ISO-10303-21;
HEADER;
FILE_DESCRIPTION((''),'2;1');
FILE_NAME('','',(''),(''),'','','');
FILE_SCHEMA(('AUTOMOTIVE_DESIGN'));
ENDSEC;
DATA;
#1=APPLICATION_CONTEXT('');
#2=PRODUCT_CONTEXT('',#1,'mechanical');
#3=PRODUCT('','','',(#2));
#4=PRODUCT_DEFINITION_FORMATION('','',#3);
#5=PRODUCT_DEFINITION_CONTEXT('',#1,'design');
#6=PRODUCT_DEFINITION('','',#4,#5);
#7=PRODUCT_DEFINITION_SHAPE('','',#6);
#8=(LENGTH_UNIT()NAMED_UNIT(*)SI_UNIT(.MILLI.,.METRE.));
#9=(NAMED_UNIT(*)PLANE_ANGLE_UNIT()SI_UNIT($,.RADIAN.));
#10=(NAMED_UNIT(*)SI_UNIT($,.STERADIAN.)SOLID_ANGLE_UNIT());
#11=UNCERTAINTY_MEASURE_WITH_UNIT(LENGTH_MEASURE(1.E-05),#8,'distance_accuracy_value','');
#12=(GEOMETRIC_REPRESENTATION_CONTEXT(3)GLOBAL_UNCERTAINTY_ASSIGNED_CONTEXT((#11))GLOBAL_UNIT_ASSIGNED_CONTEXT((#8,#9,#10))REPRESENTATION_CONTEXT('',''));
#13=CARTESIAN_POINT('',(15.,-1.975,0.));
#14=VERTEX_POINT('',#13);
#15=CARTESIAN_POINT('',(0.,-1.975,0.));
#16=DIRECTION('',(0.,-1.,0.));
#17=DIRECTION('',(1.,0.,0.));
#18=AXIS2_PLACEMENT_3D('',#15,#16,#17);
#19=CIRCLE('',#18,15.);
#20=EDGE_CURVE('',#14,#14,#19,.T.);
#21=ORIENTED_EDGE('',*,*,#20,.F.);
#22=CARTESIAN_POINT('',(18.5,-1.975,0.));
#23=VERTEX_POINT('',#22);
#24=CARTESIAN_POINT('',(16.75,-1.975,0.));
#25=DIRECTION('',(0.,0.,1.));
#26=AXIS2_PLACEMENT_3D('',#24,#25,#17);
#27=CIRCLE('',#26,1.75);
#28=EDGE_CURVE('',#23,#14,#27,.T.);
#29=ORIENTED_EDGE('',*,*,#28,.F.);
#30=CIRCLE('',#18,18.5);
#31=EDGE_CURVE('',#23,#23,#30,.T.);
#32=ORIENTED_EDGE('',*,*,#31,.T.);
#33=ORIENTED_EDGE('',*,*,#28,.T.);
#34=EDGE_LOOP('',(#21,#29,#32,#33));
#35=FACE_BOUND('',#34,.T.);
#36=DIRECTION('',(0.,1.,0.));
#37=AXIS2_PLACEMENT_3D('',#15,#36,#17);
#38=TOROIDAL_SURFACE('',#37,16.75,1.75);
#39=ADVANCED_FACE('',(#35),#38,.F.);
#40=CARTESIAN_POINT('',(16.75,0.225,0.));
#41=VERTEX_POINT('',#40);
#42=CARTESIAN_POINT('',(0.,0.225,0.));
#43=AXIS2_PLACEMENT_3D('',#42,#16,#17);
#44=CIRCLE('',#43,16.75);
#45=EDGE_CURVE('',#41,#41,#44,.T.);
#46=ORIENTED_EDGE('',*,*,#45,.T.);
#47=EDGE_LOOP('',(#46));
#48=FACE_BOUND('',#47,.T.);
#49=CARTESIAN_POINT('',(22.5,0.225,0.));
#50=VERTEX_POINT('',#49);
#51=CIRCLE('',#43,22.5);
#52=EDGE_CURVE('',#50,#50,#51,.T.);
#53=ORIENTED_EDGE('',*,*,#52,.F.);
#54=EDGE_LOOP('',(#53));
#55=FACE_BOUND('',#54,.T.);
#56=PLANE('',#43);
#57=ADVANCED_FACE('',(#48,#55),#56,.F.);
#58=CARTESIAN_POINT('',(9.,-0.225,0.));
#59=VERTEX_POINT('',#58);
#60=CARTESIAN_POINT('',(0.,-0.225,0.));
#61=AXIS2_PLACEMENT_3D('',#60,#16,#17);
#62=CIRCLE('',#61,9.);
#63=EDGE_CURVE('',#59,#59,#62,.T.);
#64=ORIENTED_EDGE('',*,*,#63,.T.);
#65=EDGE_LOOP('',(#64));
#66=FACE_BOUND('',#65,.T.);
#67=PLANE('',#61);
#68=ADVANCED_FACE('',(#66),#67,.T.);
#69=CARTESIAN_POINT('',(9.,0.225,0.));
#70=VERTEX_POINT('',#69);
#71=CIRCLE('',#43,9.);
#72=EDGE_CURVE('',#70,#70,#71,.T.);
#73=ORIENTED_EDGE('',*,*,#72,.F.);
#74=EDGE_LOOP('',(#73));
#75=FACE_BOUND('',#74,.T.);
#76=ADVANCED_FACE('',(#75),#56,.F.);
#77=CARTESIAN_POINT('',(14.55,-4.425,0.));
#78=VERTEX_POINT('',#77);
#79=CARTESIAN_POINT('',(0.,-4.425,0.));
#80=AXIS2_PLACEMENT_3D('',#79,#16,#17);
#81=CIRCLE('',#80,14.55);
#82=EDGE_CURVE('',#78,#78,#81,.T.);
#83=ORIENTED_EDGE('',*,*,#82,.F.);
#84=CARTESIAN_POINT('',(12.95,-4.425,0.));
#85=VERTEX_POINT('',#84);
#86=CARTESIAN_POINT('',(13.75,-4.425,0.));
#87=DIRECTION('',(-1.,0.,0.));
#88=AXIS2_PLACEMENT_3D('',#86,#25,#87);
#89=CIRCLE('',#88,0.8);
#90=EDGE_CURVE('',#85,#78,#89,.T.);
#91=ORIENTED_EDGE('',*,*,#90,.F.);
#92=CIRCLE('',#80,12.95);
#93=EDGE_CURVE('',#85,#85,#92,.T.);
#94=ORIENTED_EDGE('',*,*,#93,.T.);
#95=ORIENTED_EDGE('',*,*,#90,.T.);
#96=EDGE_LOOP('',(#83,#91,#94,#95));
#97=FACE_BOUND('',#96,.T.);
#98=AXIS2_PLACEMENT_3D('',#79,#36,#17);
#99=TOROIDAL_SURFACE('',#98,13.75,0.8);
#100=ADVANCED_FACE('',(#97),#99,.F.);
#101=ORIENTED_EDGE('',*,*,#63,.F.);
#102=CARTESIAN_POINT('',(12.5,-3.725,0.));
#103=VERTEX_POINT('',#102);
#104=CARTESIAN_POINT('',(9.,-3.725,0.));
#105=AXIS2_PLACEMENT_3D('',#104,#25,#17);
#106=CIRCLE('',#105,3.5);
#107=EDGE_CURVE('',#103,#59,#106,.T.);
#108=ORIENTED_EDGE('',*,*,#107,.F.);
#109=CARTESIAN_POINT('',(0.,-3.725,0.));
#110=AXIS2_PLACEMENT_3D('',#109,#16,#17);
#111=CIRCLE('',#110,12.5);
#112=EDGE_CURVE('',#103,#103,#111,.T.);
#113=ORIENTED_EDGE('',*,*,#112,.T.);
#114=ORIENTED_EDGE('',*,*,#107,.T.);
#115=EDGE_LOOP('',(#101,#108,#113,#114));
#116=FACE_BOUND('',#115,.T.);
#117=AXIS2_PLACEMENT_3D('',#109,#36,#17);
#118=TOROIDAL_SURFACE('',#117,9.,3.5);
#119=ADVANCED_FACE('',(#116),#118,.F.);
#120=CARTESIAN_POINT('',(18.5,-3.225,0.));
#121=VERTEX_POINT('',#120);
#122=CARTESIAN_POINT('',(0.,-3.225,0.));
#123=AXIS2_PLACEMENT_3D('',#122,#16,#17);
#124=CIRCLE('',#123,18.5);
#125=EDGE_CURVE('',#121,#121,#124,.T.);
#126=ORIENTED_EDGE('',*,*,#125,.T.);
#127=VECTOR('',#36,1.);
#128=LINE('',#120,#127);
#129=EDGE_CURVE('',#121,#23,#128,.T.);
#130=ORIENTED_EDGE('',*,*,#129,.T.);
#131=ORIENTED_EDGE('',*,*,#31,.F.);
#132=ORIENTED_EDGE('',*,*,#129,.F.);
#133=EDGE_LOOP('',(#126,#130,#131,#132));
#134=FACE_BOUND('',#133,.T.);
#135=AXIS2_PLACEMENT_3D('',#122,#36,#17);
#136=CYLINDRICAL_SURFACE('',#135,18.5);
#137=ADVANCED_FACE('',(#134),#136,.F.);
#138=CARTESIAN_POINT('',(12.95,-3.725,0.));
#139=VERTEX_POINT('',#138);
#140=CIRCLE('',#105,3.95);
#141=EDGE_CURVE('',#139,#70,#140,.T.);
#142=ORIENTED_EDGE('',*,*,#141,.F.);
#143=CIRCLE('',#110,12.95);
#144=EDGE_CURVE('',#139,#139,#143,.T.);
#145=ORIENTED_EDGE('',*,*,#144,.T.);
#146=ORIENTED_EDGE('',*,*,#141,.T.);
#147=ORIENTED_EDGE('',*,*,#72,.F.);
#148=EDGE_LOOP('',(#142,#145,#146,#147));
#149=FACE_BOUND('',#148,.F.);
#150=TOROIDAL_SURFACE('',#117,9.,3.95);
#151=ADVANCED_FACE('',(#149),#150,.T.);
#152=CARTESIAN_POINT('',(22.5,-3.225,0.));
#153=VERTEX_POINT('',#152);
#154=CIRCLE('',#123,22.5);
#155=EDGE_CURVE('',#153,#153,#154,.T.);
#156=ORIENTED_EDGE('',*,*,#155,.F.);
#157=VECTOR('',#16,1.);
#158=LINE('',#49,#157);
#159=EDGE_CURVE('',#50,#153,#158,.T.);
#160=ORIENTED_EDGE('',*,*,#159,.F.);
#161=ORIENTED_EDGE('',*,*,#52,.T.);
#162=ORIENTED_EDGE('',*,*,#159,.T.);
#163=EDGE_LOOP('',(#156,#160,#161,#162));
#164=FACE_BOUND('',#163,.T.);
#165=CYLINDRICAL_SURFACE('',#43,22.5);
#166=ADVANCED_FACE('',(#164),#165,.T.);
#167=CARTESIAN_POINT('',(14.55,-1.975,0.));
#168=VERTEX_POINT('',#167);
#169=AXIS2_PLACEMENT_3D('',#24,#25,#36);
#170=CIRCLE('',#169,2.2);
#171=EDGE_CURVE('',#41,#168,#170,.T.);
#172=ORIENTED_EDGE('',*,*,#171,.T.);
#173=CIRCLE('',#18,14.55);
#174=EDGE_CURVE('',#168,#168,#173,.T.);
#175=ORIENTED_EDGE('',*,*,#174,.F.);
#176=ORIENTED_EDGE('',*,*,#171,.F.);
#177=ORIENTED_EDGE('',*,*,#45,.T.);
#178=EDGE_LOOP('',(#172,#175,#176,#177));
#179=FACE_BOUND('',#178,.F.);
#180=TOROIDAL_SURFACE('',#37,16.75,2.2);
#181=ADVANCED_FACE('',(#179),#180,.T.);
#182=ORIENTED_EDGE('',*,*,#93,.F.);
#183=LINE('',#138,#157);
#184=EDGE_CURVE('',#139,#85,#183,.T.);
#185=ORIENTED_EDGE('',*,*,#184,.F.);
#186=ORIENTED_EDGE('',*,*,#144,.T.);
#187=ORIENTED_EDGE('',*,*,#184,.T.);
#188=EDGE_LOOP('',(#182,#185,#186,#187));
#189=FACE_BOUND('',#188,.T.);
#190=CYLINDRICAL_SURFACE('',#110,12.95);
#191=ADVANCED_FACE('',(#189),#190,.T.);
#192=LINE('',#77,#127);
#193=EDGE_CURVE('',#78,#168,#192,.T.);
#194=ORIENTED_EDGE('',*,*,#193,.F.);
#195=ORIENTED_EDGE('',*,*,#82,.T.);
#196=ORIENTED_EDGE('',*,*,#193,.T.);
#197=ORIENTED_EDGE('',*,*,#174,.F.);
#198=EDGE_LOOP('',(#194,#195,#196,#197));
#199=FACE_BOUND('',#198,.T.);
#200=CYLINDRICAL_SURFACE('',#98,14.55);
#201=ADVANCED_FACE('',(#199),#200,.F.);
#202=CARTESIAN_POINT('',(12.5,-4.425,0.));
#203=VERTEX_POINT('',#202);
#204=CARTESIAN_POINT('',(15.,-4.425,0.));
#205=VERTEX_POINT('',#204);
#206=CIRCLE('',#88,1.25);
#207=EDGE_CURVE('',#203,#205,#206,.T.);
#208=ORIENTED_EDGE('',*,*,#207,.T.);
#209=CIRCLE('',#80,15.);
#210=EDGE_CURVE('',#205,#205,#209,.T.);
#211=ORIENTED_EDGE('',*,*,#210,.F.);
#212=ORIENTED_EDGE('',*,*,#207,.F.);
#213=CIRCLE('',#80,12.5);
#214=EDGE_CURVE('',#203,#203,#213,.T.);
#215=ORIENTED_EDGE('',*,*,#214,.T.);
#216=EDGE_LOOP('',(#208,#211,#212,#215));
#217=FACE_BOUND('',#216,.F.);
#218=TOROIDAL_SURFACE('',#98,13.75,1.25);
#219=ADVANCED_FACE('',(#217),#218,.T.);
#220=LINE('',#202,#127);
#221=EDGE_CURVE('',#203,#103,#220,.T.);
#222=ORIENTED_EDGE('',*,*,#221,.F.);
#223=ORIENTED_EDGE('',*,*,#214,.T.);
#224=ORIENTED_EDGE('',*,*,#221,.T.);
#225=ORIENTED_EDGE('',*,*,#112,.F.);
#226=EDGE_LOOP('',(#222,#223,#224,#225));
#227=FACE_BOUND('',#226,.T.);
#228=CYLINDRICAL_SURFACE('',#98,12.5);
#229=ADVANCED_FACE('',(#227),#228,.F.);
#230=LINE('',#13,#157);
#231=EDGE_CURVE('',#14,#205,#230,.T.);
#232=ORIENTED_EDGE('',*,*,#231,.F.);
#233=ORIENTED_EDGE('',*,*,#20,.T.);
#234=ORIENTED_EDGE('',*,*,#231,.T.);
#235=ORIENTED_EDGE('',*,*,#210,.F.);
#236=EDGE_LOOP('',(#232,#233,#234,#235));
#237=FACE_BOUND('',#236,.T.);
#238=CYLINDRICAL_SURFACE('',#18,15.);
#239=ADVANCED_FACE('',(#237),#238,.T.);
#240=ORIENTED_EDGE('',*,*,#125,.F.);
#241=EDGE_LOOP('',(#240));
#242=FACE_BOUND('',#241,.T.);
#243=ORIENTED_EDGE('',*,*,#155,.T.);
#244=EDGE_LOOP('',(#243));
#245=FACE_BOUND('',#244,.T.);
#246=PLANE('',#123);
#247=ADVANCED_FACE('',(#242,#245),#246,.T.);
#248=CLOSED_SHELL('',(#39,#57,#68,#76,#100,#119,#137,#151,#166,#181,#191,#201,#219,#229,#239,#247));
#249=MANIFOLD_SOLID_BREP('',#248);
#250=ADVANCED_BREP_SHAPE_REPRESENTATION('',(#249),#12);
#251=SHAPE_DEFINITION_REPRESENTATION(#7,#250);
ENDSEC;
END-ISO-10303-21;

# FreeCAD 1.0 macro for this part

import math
import FreeCAD as App
import Part
import Sketcher

V = App.Vector
Q = App.Units.Quantity

doc = App.newDocument("Part")
body = doc.addObject("PartDesign::Body", "Body")

sketch1 = doc.addObject("Sketcher::SketchObject", "Sketch")
body.addObject(sketch1)
sketch1.AttachmentSupport = (doc.XY_Plane, [""])
sketch1.MapMode = "FlatFace"
sketch1.addGeometry(Part.LineSegment(V(0, 0.225, 0), V(0, -0.225, 0)), False)
sketch1.addGeometry(Part.LineSegment(V(0, -0.225, 0), V(9, -0.225, 0)), False)
sketch1.addGeometry(Part.ArcOfCircle(Part.Circle(V(9, -3.725, 0), V(0, 0, 1), 3.5), math.radians(0), math.radians(90)), False)
sketch1.addGeometry(Part.LineSegment(V(12.5, -3.725, 0), V(12.5, -4.425, 0)), False)
sketch1.addGeometry(Part.ArcOfCircle(Part.Circle(V(13.75, -4.425, 0), V(0, 0, 1), 1.25), math.radians(180), math.radians(360)), False)
sketch1.addGeometry(Part.LineSegment(V(15, -4.425, 0), V(15, -1.975, 0)), False)
sketch1.addGeometry(Part.ArcOfCircle(Part.Circle(V(16.75, -1.975, 0), V(0, 0, 1), 1.75), math.radians(0), math.radians(180)), False)
sketch1.addGeometry(Part.LineSegment(V(18.5, -1.975, 0), V(18.5, -3.225, 0)), False)
sketch1.addGeometry(Part.LineSegment(V(18.5, -3.225, 0), V(22.5, -3.225, 0)), False)
sketch1.addGeometry(Part.LineSegment(V(22.5, -3.225, 0), V(22.5, 0.225, 0)), False)
sketch1.addGeometry(Part.LineSegment(V(22.5, 0.225, 0), V(16.75, 0.225, 0)), False)
sketch1.addGeometry(Part.ArcOfCircle(Part.Circle(V(16.75, -1.975, 0), V(0, 0, 1), 2.2), math.radians(90), math.radians(180)), False)
sketch1.addGeometry(Part.LineSegment(V(14.55, -1.975, 0), V(14.55, -4.425, 0)), False)
sketch1.addGeometry(Part.ArcOfCircle(Part.Circle(V(13.75, -4.425, 0), V(0, 0, 1), 0.8), math.radians(180), math.radians(360)), False)
sketch1.addGeometry(Part.LineSegment(V(12.95, -4.425, 0), V(12.95, -3.725, 0)), False)
sketch1.addGeometry(Part.ArcOfCircle(Part.Circle(V(9, -3.725, 0), V(0, 0, 1), 3.95), math.radians(0), math.radians(90)), False)
sketch1.addGeometry(Part.LineSegment(V(9, 0.225, 0), V(0, 0.225, 0)), False)
sketch1.addConstraint(Sketcher.Constraint("Coincident", 0, 2, 1, 1))
sketch1.addConstraint(Sketcher.Constraint("Tangent", 1, 2, 2, 2))
sketch1.addConstraint(Sketcher.Constraint("Tangent", 2, 1, 3, 1))
sketch1.addConstraint(Sketcher.Constraint("Tangent", 3, 2, 4, 1))
sketch1.addConstraint(Sketcher.Constraint("Tangent", 4, 2, 5, 1))
sketch1.addConstraint(Sketcher.Constraint("Tangent", 5, 2, 6, 2))
sketch1.addConstraint(Sketcher.Constraint("Tangent", 6, 1, 7, 1))
sketch1.addConstraint(Sketcher.Constraint("Coincident", 7, 2, 8, 1))
sketch1.addConstraint(Sketcher.Constraint("Coincident", 8, 2, 9, 1))
sketch1.addConstraint(Sketcher.Constraint("Coincident", 9, 2, 10, 1))
sketch1.addConstraint(Sketcher.Constraint("Tangent", 10, 2, 11, 1))
sketch1.addConstraint(Sketcher.Constraint("Tangent", 11, 2, 12, 1))
sketch1.addConstraint(Sketcher.Constraint("Tangent", 12, 2, 13, 2))
sketch1.addConstraint(Sketcher.Constraint("Tangent", 13, 1, 14, 1))
sketch1.addConstraint(Sketcher.Constraint("Tangent", 14, 2, 15, 1))
sketch1.addConstraint(Sketcher.Constraint("Tangent", 15, 2, 16, 1))
sketch1.addConstraint(Sketcher.Constraint("Coincident", 16, 2, 0, 1))
sketch1.addConstraint(Sketcher.Constraint("Vertical", 0))
sketch1.addConstraint(Sketcher.Constraint("Horizontal", 1))
sketch1.addConstraint(Sketcher.Constraint("Vertical", 3))
sketch1.addConstraint(Sketcher.Constraint("Vertical", 5))
sketch1.addConstraint(Sketcher.Constraint("Vertical", 7))
sketch1.addConstraint(Sketcher.Constraint("Horizontal", 8))
sketch1.addConstraint(Sketcher.Constraint("Vertical", 9))
sketch1.addConstraint(Sketcher.Constraint("Horizontal", 10))
sketch1.addConstraint(Sketcher.Constraint("Vertical", 12))
sketch1.addConstraint(Sketcher.Constraint("Vertical", 14))
sketch1.addConstraint(Sketcher.Constraint("Horizontal", 16))
sketch1.addConstraint(Sketcher.Constraint("Coincident", 11, 3, 6, 3))
sketch1.addConstraint(Sketcher.Constraint("Coincident", 13, 3, 4, 3))
sketch1.addConstraint(Sketcher.Constraint("Coincident", 15, 3, 2, 3))
sketch1.addConstraint(Sketcher.Constraint("Symmetric", 0, 2, 16, 2, -1, 1))
sketch1.addConstraint(Sketcher.Constraint("Horizontal", 10, 2, 15, 2))
sketch1.addConstraint(Sketcher.Constraint("Radius", 2, Q("3.5 mm")))
sketch1.addConstraint(Sketcher.Constraint("Radius", 11, Q("2.2 mm")))
sketch1.addConstraint(Sketcher.Constraint("Radius", 13, Q("0.8 mm")))
sketch1.addConstraint(Sketcher.Constraint("DistanceX", 1, 1, 1, 2, Q("9 mm")))
sketch1.addConstraint(Sketcher.Constraint("DistanceX", 8, 1, 8, 2, Q("4 mm")))
sketch1.addConstraint(Sketcher.Constraint("Radius", 4, Q("1.25 mm")))
sketch1.addConstraint(Sketcher.Constraint("DistanceY", 3, 2, 3, 1, Q("0.7 mm")))
sketch1.addConstraint(Sketcher.Constraint("DistanceY", 7, 2, 7, 1, Q("1.25 mm")))
revolution = doc.addObject("PartDesign::Revolution", "Revolution")
body.addObject(revolution)
revolution.Profile = sketch1
revolution.ReferenceAxis = (sketch1, ["V_Axis"])
revolution.Angle = 360

doc.recompute()
